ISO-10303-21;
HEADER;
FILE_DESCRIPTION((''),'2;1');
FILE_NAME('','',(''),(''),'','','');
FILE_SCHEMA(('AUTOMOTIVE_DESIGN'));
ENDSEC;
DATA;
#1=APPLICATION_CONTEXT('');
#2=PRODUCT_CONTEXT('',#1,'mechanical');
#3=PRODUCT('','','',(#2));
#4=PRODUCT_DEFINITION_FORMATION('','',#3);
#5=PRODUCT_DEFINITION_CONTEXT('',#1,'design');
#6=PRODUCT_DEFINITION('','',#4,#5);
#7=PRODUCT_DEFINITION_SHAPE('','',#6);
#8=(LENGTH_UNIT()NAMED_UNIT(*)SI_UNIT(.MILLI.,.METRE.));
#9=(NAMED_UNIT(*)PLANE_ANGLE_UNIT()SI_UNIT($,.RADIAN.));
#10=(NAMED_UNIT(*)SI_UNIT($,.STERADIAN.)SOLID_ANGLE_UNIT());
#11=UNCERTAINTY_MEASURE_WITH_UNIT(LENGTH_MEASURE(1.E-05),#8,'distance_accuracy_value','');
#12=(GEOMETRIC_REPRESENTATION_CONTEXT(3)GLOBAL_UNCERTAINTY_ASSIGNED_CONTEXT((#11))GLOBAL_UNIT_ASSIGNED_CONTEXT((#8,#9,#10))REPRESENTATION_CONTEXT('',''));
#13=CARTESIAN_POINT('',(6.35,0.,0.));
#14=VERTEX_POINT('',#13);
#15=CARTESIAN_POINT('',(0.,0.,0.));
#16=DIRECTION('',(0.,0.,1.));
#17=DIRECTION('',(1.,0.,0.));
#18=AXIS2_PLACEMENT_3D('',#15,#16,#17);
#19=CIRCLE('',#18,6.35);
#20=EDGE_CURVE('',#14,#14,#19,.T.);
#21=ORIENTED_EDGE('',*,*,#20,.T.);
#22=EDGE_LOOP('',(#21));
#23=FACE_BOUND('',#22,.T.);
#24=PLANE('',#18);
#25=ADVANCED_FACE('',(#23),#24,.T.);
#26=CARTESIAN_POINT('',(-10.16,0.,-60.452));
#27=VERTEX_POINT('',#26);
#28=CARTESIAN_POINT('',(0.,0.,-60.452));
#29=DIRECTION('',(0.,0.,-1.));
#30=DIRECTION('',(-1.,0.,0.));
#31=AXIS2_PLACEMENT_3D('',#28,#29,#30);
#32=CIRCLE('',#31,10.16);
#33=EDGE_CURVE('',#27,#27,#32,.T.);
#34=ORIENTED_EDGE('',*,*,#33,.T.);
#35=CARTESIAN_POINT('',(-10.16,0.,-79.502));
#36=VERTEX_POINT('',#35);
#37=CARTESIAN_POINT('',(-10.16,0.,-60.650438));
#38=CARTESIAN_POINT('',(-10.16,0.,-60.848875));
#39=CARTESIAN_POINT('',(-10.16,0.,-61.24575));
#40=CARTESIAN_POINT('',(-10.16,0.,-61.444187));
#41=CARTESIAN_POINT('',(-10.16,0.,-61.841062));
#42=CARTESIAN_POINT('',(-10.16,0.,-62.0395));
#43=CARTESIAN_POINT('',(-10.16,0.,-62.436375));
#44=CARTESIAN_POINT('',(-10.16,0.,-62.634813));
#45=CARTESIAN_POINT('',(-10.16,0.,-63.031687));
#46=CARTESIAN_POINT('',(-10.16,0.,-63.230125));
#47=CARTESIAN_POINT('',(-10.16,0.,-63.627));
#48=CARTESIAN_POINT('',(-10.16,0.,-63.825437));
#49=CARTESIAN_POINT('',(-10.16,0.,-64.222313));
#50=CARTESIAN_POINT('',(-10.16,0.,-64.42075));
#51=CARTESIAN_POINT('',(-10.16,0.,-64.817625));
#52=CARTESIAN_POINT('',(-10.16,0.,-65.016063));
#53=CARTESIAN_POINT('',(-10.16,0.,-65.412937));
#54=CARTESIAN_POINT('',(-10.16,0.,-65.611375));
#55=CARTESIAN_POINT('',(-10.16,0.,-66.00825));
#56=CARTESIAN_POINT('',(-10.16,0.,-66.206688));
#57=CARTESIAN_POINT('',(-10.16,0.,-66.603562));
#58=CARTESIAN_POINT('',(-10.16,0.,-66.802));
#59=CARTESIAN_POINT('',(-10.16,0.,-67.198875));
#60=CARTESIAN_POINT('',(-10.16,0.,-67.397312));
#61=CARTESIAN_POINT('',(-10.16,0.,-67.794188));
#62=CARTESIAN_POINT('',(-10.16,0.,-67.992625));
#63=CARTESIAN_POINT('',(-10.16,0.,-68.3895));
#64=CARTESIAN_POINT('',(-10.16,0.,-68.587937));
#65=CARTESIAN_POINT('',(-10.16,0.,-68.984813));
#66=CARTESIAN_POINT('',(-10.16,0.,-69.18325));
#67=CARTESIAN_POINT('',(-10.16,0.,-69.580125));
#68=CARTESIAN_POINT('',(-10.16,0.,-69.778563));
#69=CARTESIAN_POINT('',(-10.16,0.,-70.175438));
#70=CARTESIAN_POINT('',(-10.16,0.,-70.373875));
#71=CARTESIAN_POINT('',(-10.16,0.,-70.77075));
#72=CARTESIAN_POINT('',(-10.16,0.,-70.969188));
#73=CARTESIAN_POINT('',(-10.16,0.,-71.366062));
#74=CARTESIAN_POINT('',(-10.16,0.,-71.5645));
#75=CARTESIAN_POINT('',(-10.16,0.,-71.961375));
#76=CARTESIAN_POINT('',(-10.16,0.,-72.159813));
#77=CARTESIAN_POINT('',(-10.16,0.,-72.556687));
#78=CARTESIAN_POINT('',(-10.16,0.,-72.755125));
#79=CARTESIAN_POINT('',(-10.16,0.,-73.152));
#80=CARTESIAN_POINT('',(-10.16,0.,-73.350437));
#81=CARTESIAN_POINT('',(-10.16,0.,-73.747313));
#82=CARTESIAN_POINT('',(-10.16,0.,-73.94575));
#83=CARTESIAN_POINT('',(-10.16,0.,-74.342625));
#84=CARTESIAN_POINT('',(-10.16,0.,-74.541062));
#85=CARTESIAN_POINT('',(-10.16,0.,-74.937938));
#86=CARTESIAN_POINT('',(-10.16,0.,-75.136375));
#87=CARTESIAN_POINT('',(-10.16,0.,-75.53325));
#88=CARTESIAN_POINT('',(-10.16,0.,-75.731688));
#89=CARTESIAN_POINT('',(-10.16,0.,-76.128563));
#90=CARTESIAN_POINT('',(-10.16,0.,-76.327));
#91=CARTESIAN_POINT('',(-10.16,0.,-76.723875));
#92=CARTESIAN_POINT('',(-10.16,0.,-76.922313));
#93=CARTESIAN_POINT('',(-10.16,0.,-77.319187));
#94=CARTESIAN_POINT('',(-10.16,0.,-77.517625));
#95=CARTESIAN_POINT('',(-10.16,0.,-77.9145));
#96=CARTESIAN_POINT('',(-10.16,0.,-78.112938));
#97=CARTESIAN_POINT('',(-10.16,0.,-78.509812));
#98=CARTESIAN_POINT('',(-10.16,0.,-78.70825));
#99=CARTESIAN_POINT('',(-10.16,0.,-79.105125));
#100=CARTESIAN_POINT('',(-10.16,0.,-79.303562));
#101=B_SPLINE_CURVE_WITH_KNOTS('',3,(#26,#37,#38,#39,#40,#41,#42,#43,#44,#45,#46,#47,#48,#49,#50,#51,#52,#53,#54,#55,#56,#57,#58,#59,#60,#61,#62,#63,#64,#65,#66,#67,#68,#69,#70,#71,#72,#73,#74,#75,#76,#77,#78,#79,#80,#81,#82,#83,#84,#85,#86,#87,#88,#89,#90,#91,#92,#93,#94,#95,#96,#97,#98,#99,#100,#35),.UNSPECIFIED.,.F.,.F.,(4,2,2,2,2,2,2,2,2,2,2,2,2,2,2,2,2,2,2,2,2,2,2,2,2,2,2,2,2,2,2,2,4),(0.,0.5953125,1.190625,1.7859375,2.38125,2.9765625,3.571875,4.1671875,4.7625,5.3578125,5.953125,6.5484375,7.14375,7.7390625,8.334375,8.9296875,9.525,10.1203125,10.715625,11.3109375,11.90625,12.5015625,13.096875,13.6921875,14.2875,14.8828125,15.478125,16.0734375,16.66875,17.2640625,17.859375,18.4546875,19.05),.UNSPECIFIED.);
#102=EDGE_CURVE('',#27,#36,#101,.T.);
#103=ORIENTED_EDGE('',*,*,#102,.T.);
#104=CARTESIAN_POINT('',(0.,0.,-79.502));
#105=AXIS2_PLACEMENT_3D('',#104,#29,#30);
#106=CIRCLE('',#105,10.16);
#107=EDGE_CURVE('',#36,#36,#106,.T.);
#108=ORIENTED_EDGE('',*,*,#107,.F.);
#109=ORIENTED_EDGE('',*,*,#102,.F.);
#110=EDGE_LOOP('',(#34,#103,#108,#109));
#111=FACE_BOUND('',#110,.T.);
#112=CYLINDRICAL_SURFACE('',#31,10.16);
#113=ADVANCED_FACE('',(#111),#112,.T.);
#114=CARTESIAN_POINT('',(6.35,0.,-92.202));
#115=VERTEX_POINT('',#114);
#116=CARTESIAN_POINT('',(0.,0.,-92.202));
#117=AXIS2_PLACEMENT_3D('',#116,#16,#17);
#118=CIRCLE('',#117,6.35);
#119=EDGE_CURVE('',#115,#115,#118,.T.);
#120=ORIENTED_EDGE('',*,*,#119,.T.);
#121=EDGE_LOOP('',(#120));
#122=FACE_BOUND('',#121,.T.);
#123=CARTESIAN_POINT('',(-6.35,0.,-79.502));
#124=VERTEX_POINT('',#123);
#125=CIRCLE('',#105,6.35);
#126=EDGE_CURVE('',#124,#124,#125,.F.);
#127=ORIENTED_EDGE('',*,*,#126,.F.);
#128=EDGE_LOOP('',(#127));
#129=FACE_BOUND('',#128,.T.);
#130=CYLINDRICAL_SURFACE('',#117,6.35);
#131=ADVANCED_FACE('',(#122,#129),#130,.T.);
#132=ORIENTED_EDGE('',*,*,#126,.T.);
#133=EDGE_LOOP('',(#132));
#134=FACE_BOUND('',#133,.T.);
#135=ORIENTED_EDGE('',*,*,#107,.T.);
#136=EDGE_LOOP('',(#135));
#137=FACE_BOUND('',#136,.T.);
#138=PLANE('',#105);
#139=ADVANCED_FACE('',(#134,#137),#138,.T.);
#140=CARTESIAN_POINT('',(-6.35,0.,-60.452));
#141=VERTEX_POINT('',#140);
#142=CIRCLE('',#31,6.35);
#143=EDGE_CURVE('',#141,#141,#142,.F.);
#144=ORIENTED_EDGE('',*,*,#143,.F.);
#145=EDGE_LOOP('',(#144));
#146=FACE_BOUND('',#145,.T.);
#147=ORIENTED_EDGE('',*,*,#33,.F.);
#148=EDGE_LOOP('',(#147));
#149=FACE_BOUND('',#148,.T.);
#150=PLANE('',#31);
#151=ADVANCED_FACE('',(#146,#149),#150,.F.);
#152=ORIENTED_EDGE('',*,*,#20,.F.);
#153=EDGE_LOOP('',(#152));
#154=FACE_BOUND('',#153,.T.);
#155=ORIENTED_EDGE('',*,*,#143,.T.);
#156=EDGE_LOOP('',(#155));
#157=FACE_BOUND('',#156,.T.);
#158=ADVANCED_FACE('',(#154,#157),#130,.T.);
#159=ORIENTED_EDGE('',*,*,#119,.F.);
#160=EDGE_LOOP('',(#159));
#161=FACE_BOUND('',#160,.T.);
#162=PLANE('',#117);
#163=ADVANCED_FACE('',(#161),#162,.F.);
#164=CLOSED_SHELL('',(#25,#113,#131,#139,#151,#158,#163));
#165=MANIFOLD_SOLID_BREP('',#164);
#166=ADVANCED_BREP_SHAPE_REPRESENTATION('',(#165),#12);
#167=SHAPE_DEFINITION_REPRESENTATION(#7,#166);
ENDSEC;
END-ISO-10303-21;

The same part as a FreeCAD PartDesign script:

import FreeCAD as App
import Part
import Sketcher
Q = App.Units.Quantity

doc = App.newDocument("Part")
params = doc.addObject("Spreadsheet::Sheet", "Params")
for row, (alias, value) in enumerate([
    ("sketch1_diameter", "0.5 in"),
    ("pad1_length", "3.63 in"),
    ("sketch2_diameter", "0.8 in"),
    ("pad2_length", "0.75 in"),
], start=1):
    params.set(f"A{row}", alias)
    params.set(f"B{row}", "=" + value)
    params.setAlias(f"B{row}", alias)

body = doc.addObject("PartDesign::Body", "Body")

# Sketch on XY plane
sketch1 = body.newObject("Sketcher::SketchObject", "Sketch")
sketch1.AttachmentSupport = (doc.getObject("XY_Plane"), [""])
sketch1.MapMode = "FlatFace"
sketch1.addGeometry(Part.Circle(App.Vector(0, 0, 0), App.Vector(0, 0, 1), 6.35), False)
sketch1.addConstraint([
    Sketcher.Constraint("Coincident", 0, 3, -1, 1),
    Sketcher.Constraint("Diameter", 0, Q("0.5 in")),
])
sketch1.setExpression("Constraints[1]", "Params.sketch1_diameter")
pad1 = body.newObject("PartDesign::Pad", "Pad")
pad1.Profile = sketch1
pad1.setExpression("Length", "Params.pad1_length")
pad1.Reversed = True

# Sketch on XY plane
sketch2 = body.newObject("Sketcher::SketchObject", "Sketch001")
sketch2.AttachmentSupport = (doc.getObject("XY_Plane"), [""])
sketch2.MapMode = "FlatFace"
sketch2.AttachmentOffset = App.Placement(App.Vector(0, 0, -3.13 * 25.4), App.Rotation())
sketch2.addGeometry(Part.Circle(App.Vector(0, 0, 0), App.Vector(0, 0, 1), 10.16), False)
sketch2.addConstraint([
    Sketcher.Constraint("Coincident", 0, 3, -1, 1),
    Sketcher.Constraint("Diameter", 0, Q("0.8 in")),
])
sketch2.setExpression("Constraints[1]", "Params.sketch2_diameter")
pad2 = body.newObject("PartDesign::Pad", "Pad001")
pad2.Profile = sketch2
pad2.setExpression("Length", "Params.pad2_length")

doc.recompute()
